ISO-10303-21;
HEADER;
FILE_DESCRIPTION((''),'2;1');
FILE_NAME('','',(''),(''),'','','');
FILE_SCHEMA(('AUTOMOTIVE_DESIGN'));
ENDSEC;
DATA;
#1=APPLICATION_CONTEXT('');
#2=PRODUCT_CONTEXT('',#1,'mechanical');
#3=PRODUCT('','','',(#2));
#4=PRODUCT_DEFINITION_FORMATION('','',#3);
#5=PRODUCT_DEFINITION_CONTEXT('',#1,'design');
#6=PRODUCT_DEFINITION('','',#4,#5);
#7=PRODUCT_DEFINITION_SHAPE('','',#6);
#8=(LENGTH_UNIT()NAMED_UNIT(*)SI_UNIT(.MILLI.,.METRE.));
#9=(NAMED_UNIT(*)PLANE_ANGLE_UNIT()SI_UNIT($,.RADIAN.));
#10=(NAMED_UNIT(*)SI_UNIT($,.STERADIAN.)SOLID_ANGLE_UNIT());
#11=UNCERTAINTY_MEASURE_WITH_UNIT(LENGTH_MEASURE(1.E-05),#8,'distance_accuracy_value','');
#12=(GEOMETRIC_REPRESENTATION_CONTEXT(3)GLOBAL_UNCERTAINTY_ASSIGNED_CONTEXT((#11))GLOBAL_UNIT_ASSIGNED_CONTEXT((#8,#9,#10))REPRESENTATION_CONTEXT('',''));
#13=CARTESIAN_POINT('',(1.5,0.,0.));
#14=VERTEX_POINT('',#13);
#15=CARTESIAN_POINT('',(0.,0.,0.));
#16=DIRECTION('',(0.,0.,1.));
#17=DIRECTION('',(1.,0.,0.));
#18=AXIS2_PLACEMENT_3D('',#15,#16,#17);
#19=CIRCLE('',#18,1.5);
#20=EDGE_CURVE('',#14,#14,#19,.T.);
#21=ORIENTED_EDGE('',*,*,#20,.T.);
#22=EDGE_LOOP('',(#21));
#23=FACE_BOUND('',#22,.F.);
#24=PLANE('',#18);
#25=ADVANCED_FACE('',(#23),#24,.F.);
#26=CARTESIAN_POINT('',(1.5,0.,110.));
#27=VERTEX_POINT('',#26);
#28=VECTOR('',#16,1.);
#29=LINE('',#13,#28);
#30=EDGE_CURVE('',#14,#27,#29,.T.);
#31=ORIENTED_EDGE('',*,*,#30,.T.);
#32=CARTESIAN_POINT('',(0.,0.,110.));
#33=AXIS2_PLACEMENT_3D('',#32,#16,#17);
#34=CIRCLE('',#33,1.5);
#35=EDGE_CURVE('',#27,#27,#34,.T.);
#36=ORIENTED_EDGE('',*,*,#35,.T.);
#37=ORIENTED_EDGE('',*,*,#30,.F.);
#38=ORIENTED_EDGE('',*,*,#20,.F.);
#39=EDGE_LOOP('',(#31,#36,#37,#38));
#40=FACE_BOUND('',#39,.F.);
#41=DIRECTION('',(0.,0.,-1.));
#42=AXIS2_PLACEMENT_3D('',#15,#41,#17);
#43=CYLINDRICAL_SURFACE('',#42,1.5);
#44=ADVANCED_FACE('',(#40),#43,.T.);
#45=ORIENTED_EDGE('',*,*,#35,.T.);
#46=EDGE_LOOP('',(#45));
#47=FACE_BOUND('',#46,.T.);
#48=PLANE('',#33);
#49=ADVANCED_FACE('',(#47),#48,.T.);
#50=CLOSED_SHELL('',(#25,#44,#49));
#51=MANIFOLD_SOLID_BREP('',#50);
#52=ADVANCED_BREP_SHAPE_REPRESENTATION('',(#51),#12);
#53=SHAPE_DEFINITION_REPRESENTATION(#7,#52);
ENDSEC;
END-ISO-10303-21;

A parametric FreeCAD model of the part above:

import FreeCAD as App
import Part
import Sketcher

doc = App.newDocument("Part")
params = doc.addObject("Spreadsheet::Sheet", "Params")
for row, (alias, value) in enumerate([
    ("sketch1_diameter", "3 mm"),
    ("pad1_length", "110 mm"),
], start=1):
    params.set(f"A{row}", alias)
    params.set(f"B{row}", "=" + value)
    params.setAlias(f"B{row}", alias)

body = doc.addObject("PartDesign::Body", "Body")

# Sketch on XY plane
sketch1 = body.newObject("Sketcher::SketchObject", "Sketch")
sketch1.AttachmentSupport = (doc.getObject("XY_Plane"), [""])
sketch1.MapMode = "FlatFace"
sketch1.addGeometry(Part.Circle(App.Vector(0, 0, 0), App.Vector(0, 0, 1), 1.5), False)
sketch1.addConstraint([
    Sketcher.Constraint("Coincident", 0, 3, -1, 1),
    Sketcher.Constraint("Diameter", 0, 3.0),
])
sketch1.setExpression("Constraints[1]", "Params.sketch1_diameter")
pad1 = body.newObject("PartDesign::Pad", "Pad")
pad1.Profile = sketch1
pad1.setExpression("Length", "Params.pad1_length")

doc.recompute()
